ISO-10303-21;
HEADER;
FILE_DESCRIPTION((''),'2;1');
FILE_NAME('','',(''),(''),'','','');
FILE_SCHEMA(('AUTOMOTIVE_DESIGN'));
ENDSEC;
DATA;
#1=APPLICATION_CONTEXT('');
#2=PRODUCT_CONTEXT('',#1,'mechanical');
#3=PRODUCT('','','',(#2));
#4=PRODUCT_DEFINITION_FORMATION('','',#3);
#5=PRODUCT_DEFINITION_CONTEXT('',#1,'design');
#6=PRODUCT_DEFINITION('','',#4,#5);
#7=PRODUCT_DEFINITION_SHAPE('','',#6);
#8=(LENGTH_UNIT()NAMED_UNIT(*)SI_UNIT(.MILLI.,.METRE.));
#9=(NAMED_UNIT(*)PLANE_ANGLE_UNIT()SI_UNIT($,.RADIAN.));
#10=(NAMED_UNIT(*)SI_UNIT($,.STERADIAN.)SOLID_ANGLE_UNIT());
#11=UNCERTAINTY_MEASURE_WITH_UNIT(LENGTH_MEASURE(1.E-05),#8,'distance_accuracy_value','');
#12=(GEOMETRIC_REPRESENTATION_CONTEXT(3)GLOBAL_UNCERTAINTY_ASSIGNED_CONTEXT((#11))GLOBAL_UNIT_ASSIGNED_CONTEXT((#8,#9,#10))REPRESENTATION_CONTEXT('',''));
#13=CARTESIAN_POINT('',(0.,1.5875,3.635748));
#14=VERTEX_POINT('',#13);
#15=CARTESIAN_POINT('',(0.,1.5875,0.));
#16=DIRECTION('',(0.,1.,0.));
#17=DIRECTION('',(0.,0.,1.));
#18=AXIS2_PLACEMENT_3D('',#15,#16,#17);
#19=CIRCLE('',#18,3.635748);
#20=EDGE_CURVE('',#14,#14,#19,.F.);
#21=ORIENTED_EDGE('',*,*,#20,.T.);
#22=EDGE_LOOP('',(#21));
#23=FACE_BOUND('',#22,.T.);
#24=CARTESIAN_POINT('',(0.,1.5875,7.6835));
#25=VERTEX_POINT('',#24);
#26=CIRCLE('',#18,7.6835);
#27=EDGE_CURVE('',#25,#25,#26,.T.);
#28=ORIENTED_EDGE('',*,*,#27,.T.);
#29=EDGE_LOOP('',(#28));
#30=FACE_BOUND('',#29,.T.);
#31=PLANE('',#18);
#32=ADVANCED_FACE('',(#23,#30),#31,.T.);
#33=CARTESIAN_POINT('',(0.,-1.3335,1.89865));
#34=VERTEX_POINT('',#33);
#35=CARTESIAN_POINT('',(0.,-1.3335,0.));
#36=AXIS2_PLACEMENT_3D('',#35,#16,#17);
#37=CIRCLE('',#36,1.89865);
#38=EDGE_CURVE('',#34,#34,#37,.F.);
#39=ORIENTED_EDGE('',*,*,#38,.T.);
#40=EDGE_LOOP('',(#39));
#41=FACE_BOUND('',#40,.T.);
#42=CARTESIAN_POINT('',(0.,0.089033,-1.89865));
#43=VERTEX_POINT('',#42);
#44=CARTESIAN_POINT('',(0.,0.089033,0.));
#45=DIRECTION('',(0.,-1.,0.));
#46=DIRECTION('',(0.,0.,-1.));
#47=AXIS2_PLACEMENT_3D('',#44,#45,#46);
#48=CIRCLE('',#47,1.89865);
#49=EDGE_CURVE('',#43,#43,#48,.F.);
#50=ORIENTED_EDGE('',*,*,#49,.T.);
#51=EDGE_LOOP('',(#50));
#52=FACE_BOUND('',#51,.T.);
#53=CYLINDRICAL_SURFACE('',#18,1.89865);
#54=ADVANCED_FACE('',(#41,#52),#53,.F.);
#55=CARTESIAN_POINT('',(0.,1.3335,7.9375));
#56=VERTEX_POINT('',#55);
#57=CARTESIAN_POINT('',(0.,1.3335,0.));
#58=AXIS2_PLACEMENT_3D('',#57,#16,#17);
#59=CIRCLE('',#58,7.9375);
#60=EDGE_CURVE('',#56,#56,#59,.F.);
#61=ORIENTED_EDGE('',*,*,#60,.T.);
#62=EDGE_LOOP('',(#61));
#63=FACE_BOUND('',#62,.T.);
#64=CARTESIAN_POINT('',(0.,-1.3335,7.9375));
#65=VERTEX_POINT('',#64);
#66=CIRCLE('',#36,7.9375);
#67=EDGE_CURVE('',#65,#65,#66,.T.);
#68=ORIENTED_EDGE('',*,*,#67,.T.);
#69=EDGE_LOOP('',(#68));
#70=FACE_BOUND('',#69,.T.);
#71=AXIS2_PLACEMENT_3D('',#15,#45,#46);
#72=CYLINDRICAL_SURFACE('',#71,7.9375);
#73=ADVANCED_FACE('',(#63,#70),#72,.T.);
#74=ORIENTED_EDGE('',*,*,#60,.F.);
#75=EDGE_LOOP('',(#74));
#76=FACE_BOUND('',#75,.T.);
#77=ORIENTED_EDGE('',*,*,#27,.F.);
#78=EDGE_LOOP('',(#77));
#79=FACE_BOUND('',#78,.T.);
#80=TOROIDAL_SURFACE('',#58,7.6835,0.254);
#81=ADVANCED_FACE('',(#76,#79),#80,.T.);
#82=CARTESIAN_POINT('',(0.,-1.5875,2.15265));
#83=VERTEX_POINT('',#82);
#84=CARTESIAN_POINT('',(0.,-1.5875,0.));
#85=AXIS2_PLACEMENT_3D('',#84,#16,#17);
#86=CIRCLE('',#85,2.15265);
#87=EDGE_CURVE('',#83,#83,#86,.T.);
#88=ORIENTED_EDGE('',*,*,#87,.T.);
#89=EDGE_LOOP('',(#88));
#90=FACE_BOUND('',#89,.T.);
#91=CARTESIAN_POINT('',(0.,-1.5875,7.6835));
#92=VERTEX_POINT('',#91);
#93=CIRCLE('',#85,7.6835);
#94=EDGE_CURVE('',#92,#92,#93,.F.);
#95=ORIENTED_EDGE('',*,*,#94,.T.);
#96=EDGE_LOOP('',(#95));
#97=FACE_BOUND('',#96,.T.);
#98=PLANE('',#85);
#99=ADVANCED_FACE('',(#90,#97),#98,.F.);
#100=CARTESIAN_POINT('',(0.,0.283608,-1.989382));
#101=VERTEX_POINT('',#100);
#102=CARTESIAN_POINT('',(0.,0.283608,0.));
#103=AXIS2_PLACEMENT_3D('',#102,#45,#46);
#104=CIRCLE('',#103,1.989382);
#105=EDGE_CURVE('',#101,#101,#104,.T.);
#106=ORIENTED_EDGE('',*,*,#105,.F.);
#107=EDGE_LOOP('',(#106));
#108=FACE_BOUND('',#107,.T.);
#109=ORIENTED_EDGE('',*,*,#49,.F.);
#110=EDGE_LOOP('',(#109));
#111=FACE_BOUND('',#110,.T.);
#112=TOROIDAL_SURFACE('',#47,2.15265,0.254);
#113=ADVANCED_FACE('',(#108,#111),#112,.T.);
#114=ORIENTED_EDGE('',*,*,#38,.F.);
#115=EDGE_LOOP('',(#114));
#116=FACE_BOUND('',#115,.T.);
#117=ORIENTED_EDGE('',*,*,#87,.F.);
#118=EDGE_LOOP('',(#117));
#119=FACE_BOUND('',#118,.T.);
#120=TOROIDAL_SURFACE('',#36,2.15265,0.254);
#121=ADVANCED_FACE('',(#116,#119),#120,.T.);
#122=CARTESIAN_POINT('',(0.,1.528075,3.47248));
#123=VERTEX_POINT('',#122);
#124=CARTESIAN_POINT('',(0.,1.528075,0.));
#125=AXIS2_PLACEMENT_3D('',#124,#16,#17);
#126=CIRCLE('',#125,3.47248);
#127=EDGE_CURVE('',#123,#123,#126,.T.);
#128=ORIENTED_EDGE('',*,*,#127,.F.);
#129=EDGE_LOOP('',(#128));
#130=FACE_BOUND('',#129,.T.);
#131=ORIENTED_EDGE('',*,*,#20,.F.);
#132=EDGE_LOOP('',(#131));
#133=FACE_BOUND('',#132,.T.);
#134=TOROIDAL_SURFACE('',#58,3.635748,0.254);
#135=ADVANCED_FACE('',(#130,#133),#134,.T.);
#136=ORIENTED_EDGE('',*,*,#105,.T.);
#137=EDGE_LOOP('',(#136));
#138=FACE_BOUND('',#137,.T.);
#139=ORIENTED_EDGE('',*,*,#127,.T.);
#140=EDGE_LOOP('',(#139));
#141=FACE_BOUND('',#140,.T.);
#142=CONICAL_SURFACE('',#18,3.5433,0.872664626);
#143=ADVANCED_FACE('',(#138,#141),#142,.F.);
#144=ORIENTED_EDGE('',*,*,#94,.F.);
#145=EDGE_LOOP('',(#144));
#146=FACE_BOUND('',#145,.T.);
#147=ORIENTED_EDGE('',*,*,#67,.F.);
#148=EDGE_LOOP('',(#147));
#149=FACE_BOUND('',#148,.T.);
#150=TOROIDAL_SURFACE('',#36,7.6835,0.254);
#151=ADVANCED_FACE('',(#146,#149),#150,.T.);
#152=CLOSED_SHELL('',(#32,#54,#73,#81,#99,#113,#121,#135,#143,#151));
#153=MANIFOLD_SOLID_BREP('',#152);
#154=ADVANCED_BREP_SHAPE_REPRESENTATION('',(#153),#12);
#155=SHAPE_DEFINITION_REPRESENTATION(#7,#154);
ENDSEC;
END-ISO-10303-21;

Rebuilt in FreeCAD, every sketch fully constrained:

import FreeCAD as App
import Part
import Sketcher
from FreeCAD import Vector
Q = App.Units.Quantity


def edges_at(feature, points):
    """Names of the edges that pass closest to the given points."""
    edges = feature.Shape.Edges
    near = lambda p: min(range(len(edges)), key=lambda i: edges[i].distToShape(Part.Vertex(*p))[0])
    return sorted({f"Edge{near(p) + 1}" for p in points})

doc = App.newDocument("Part")
body = doc.addObject("PartDesign::Body", "Body")

# Sketch on XZ plane
sketch1 = doc.addObject("Sketcher::SketchObject", "Sketch")
body.addObject(sketch1)
sketch1.AttachmentSupport = (doc.XZ_Plane, [""])
sketch1.MapMode = "FlatFace"
sketch1.addGeometry(Part.Circle(Vector(0, 0, 0), Vector(0, 0, 1), 8), False)
sketch1.addConstraint(Sketcher.Constraint("Coincident", 0, 3, -1, 1))
sketch1.addConstraint(Sketcher.Constraint("Diameter", 0, Q("0.625 in")))
pad1 = doc.addObject("PartDesign::Pad", "Pad")
body.addObject(pad1)
pad1.Profile = sketch1
pad1.Length = Q("0.125 in")
pad1.Midplane = True

# Sketch on XZ plane
sketch2 = doc.addObject("Sketcher::SketchObject", "Sketch001")
body.addObject(sketch2)
sketch2.AttachmentSupport = (doc.XZ_Plane, [""])
sketch2.MapMode = "FlatFace"
sketch2.AttachmentOffset = App.Placement(Vector(0, 0, -0.0625 * 25.4), App.Rotation())
sketch2.addGeometry(Part.Circle(Vector(0, 0, 0), Vector(0, 0, 1), 1.9), False)
sketch2.addConstraint(Sketcher.Constraint("Coincident", 0, 3, -1, 1))
sketch2.addConstraint(Sketcher.Constraint("Diameter", 0, Q("0.1495 in")))
doc.recompute()
hole = doc.addObject("PartDesign::Hole", "Hole")
body.addObject(hole)
hole.Profile = sketch2
hole.ThreadType = "None"
hole.Diameter = Q("0.1495 in")
hole.DepthType = "ThroughAll"
hole.HoleCutType = "Countersink"
hole.HoleCutDiameter = Q("0.279 in")
hole.HoleCutCountersinkAngle = 100
hole.Reversed = True
doc.recompute()

fillet = doc.addObject("PartDesign::Fillet", "Fillet")
body.addObject(fillet)
fillet.Base = (hole, edges_at(hole, [
    (0, -1.587, -7.938),
    (0, 1.587, -7.938),
    (3.543, 1.587, 0),
    (1.899, -1.587, 0),
    (1.899, 0.207, 0),
]))
fillet.Radius = Q("0.01 in")

doc.recompute()
